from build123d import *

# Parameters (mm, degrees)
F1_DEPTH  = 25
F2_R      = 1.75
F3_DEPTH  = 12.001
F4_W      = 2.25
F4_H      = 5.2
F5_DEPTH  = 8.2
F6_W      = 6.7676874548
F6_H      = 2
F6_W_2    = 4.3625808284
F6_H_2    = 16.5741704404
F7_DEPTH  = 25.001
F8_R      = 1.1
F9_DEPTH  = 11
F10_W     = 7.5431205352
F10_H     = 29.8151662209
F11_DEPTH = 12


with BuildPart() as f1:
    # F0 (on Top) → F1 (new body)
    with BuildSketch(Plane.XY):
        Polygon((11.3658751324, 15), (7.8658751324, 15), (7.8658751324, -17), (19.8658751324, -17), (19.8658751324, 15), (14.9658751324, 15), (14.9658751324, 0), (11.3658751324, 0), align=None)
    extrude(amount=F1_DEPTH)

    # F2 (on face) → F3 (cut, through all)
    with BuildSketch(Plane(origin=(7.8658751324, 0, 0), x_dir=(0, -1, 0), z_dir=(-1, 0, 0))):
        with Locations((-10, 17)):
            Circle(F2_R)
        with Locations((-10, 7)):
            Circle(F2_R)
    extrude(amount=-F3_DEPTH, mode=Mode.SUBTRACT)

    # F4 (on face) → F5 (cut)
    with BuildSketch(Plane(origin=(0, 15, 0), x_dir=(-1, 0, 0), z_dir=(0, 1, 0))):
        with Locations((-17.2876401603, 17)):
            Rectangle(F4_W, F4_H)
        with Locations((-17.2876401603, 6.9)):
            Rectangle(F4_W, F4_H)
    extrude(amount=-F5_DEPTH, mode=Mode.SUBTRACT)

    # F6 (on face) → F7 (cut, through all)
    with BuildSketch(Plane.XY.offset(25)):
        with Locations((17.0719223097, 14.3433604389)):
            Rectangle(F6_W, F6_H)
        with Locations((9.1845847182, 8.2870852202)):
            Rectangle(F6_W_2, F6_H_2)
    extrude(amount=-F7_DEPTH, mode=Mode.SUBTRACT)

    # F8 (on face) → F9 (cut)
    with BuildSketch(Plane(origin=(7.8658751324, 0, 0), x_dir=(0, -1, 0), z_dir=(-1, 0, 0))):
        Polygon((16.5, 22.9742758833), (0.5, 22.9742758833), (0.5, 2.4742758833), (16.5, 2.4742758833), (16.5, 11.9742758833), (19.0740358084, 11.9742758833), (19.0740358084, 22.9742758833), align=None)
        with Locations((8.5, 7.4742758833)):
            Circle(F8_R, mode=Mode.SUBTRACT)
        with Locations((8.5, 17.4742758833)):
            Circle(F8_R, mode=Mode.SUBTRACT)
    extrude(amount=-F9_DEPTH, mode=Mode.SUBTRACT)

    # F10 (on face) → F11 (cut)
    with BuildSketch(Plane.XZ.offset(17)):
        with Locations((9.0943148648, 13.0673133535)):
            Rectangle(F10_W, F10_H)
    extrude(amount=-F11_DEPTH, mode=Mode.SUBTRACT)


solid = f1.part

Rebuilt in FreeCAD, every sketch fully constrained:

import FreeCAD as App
import Part
import Sketcher


def add_polygon(sketch, points):
    """Adds a closed chain of lines whose ends are joined by coincident constraints."""
    first, n = sketch.GeometryCount, len(points)
    for a, b in zip(points, points[1:] + points[:1]):
        sketch.addGeometry(Part.LineSegment(App.Vector(*a, 0), App.Vector(*b, 0)), False)
    for i in range(n):
        sketch.addConstraint(Sketcher.Constraint("Coincident", first + i, 2, first + (i + 1) % n, 1))

doc = App.newDocument("Part")
body = doc.addObject("PartDesign::Body", "Body")

# Sketch on XY plane
sketch1 = body.newObject("Sketcher::SketchObject", "Sketch")
sketch1.AttachmentSupport = (doc.getObject("XY_Plane"), [""])
sketch1.MapMode = "FlatFace"
add_polygon(sketch1, [(11.365875, 15), (7.865875, 15), (7.865875, -17), (19.865875, -17), (19.865875, 15), (14.965875, 15), (14.965875, 0), (11.365875, 0)])  # lines 0-7
sketch1.addConstraint(Sketcher.Constraint("Horizontal", 0))
sketch1.addConstraint(Sketcher.Constraint("Vertical", 1))
sketch1.addConstraint(Sketcher.Constraint("Horizontal", 2))
sketch1.addConstraint(Sketcher.Constraint("Vertical", 3))
sketch1.addConstraint(Sketcher.Constraint("Horizontal", 4))
sketch1.addConstraint(Sketcher.Constraint("Vertical", 5))
sketch1.addConstraint(Sketcher.Constraint("Horizontal", 6))
sketch1.addConstraint(Sketcher.Constraint("Vertical", 7))
sketch1.addConstraint(Sketcher.Constraint("PointOnObject", 5, 2, -1))
sketch1.addConstraint(Sketcher.Constraint("Horizontal", 0, 2, 3, 2))
sketch1.addConstraint(Sketcher.Constraint("DistanceX", 2, 1, 2, 2, 12.0))
sketch1.addConstraint(Sketcher.Constraint("DistanceY", 1, 2, 1, 1, 32.0))
sketch1.addConstraint(Sketcher.Constraint("DistanceY", 5, 2, 5, 1, 15.0))
sketch1.addConstraint(Sketcher.Constraint("DistanceX", 0, 2, 0, 1, 3.5))
sketch1.addConstraint(Sketcher.Constraint("DistanceX", 4, 2, 4, 1, 4.9))
sketch1.addConstraint(Sketcher.Constraint("DistanceX", -1, 1, 0, 2, 7.865875))
pad1 = body.newObject("PartDesign::Pad", "Pad")
pad1.Profile = sketch1
pad1.Length = 25

# Sketch on YZ plane
sketch2 = body.newObject("Sketcher::SketchObject", "Sketch001")
sketch2.AttachmentSupport = (doc.getObject("YZ_Plane"), [""])
sketch2.MapMode = "FlatFace"
sketch2.AttachmentOffset = App.Placement(App.Vector(0, 0, 7.865875), App.Rotation())
sketch2.addGeometry(Part.Circle(App.Vector(10, 17, 0), App.Vector(0, 0, 1), 1.75), False)
sketch2.addGeometry(Part.Circle(App.Vector(10, 7, 0), App.Vector(0, 0, 1), 1.75), False)
sketch2.addConstraint(Sketcher.Constraint("Equal", 0, 1))
sketch2.addConstraint(Sketcher.Constraint("Vertical", 0, 3, 1, 3))
sketch2.addConstraint(Sketcher.Constraint("Diameter", 0, 3.5))
sketch2.addConstraint(Sketcher.Constraint("DistanceX", -1, 1, 0, 3, 10.0))
sketch2.addConstraint(Sketcher.Constraint("DistanceY", -1, 1, 0, 3, 17.0))
sketch2.addConstraint(Sketcher.Constraint("DistanceY", -1, 1, 1, 3, 7.0))
pocket1 = body.newObject("PartDesign::Pocket", "Pocket")
pocket1.Profile = sketch2
pocket1.Type = "ThroughAll"
pocket1.Reversed = True

# Sketch on XZ plane
sketch3 = body.newObject("Sketcher::SketchObject", "Sketch002")
sketch3.AttachmentSupport = (doc.getObject("XZ_Plane"), [""])
sketch3.MapMode = "FlatFace"
sketch3.AttachmentOffset = App.Placement(App.Vector(0, 0, -15), App.Rotation())
add_polygon(sketch3, [(18.41264, 19.6), (18.41264, 14.4), (16.16264, 14.4), (16.16264, 19.6)])  # lines 0-3
add_polygon(sketch3, [(18.41264, 9.5), (18.41264, 4.3), (16.16264, 4.3), (16.16264, 9.5)])  # lines 4-7
sketch3.addConstraint(Sketcher.Constraint("Vertical", 0))
sketch3.addConstraint(Sketcher.Constraint("Horizontal", 1))
sketch3.addConstraint(Sketcher.Constraint("Vertical", 2))
sketch3.addConstraint(Sketcher.Constraint("Horizontal", 3))
sketch3.addConstraint(Sketcher.Constraint("Vertical", 4))
sketch3.addConstraint(Sketcher.Constraint("Horizontal", 5))
sketch3.addConstraint(Sketcher.Constraint("Vertical", 6))
sketch3.addConstraint(Sketcher.Constraint("Horizontal", 7))
sketch3.addConstraint(Sketcher.Constraint("Vertical", 3, 2, 4, 2))
sketch3.addConstraint(Sketcher.Constraint("Vertical", 2, 2, 5, 2))
sketch3.addConstraint(Sketcher.Constraint("Equal", 2, 4))
sketch3.addConstraint(Sketcher.Constraint("DistanceY", 0, 2, 0, 1, 5.2))
sketch3.addConstraint(Sketcher.Constraint("DistanceX", 1, 2, 1, 1, 2.25))
sketch3.addConstraint(Sketcher.Constraint("DistanceY", -1, 1, 0, 2, 14.4))
sketch3.addConstraint(Sketcher.Constraint("DistanceY", -1, 1, 4, 2, 4.3))
sketch3.addConstraint(Sketcher.Constraint("DistanceX", -1, 1, 0, 2, 18.41264))
pocket2 = body.newObject("PartDesign::Pocket", "Pocket001")
pocket2.Profile = sketch3
pocket2.Length = 8.2
pocket2.Reversed = True

# Sketch on XY plane
sketch4 = body.newObject("Sketcher::SketchObject", "Sketch003")
sketch4.AttachmentSupport = (doc.getObject("XY_Plane"), [""])
sketch4.MapMode = "FlatFace"
sketch4.AttachmentOffset = App.Placement(App.Vector(0, 0, 25), App.Rotation())
add_polygon(sketch4, [(13.688079, 15.34336), (13.688079, 13.34336), (20.455766, 13.34336), (20.455766, 15.34336)])  # lines 0-3
add_polygon(sketch4, [(7.003294, 16.57417), (7.003294, 0), (11.365875, 0), (11.365875, 16.57417)])  # lines 4-7
sketch4.addConstraint(Sketcher.Constraint("Vertical", 0))
sketch4.addConstraint(Sketcher.Constraint("Horizontal", 1))
sketch4.addConstraint(Sketcher.Constraint("Vertical", 2))
sketch4.addConstraint(Sketcher.Constraint("Horizontal", 3))
sketch4.addConstraint(Sketcher.Constraint("Vertical", 4))
sketch4.addConstraint(Sketcher.Constraint("Horizontal", 5))
sketch4.addConstraint(Sketcher.Constraint("Vertical", 6))
sketch4.addConstraint(Sketcher.Constraint("Horizontal", 7))
sketch4.addConstraint(Sketcher.Constraint("PointOnObject", 4, 2, -1))
sketch4.addConstraint(Sketcher.Constraint("DistanceY", 0, 2, 0, 1, 2.0))
sketch4.addConstraint(Sketcher.Constraint("DistanceX", 5, 1, 5, 2, 4.362581))
sketch4.addConstraint(Sketcher.Constraint("DistanceY", 4, 2, 4, 1, 16.57417))
sketch4.addConstraint(Sketcher.Constraint("DistanceX", 1, 1, 1, 2, 6.767687))
sketch4.addConstraint(Sketcher.Constraint("DistanceX", -1, 1, 0, 2, 13.688079))
sketch4.addConstraint(Sketcher.Constraint("DistanceY", -1, 1, 0, 2, 13.34336))
sketch4.addConstraint(Sketcher.Constraint("DistanceX", 4, 2, 1, 2, 13.452472))
pocket3 = body.newObject("PartDesign::Pocket", "Pocket002")
pocket3.Profile = sketch4
pocket3.Type = "ThroughAll"

# Sketch on YZ plane
sketch5 = body.newObject("Sketcher::SketchObject", "Sketch004")
sketch5.AttachmentSupport = (doc.getObject("YZ_Plane"), [""])
sketch5.MapMode = "FlatFace"
sketch5.AttachmentOffset = App.Placement(App.Vector(0, 0, 7.865875), App.Rotation())
add_polygon(sketch5, [(-0.5, 22.974276), (-0.5, 2.474276), (-16.5, 2.474276), (-16.5, 11.974276), (-19.074036, 11.974276), (-19.074036, 22.974276)])  # lines 0-5
sketch5.addGeometry(Part.Circle(App.Vector(-8.5, 7.474276, 0), App.Vector(0, 0, 1), 1.1), False)  # 6
sketch5.addGeometry(Part.Circle(App.Vector(-8.5, 17.474276, 0), App.Vector(0, 0, 1), 1.1), False)  # 7
sketch5.addConstraint(Sketcher.Constraint("Vertical", 0))
sketch5.addConstraint(Sketcher.Constraint("Horizontal", 1))
sketch5.addConstraint(Sketcher.Constraint("Vertical", 2))
sketch5.addConstraint(Sketcher.Constraint("Horizontal", 3))
sketch5.addConstraint(Sketcher.Constraint("Vertical", 4))
sketch5.addConstraint(Sketcher.Constraint("Horizontal", 5))
sketch5.addConstraint(Sketcher.Constraint("Equal", 6, 7))
sketch5.addConstraint(Sketcher.Constraint("Vertical", 6, 3, 7, 3))
sketch5.addConstraint(Sketcher.Constraint("Diameter", 6, 2.2))
sketch5.addConstraint(Sketcher.Constraint("DistanceX", 1, 2, 1, 1, 16.0))
sketch5.addConstraint(Sketcher.Constraint("DistanceY", 4, 1, 4, 2, 11.0))
sketch5.addConstraint(Sketcher.Constraint("DistanceY", 0, 2, 0, 1, 20.5))
sketch5.addConstraint(Sketcher.Constraint("DistanceY", 6, 3, 7, 3, 10.0))
sketch5.addConstraint(Sketcher.Constraint("DistanceX", 6, 3, 0, 2, 8.0))
sketch5.addConstraint(Sketcher.Constraint("DistanceY", 0, 2, 6, 3, 5.0))
sketch5.addConstraint(Sketcher.Constraint("DistanceX", 6, 3, -1, 1, 8.5))
sketch5.addConstraint(Sketcher.Constraint("DistanceX", 3, 2, 3, 1, 2.574036))
sketch5.addConstraint(Sketcher.Constraint("DistanceY", -1, 1, 6, 3, 7.474276))
pocket4 = body.newObject("PartDesign::Pocket", "Pocket003")
pocket4.Profile = sketch5
pocket4.Length = 11
pocket4.Reversed = True

# Sketch on XZ plane
sketch6 = body.newObject("Sketcher::SketchObject", "Sketch005")
sketch6.AttachmentSupport = (doc.getObject("XZ_Plane"), [""])
sketch6.MapMode = "FlatFace"
sketch6.AttachmentOffset = App.Placement(App.Vector(0, 0, 17), App.Rotation())
add_polygon(sketch6, [(5.322755, 27.974896), (5.322755, -1.84027), (12.865875, -1.84027), (12.865875, 27.974896)])  # lines 0-3
sketch6.addConstraint(Sketcher.Constraint("Vertical", 0))
sketch6.addConstraint(Sketcher.Constraint("Horizontal", 1))
sketch6.addConstraint(Sketcher.Constraint("Vertical", 2))
sketch6.addConstraint(Sketcher.Constraint("Horizontal", 3))
sketch6.addConstraint(Sketcher.Constraint("DistanceX", 1, 1, 1, 2, 7.543121))
sketch6.addConstraint(Sketcher.Constraint("DistanceY", 0, 2, 0, 1, 29.815166))
sketch6.addConstraint(Sketcher.Constraint("DistanceY", 0, 2, -1, 1, 1.84027))
sketch6.addConstraint(Sketcher.Constraint("DistanceX", -1, 1, 0, 2, 5.322755))
pocket5 = body.newObject("PartDesign::Pocket", "Pocket004")
pocket5.Profile = sketch6
pocket5.Length = 12

doc.recompute()
